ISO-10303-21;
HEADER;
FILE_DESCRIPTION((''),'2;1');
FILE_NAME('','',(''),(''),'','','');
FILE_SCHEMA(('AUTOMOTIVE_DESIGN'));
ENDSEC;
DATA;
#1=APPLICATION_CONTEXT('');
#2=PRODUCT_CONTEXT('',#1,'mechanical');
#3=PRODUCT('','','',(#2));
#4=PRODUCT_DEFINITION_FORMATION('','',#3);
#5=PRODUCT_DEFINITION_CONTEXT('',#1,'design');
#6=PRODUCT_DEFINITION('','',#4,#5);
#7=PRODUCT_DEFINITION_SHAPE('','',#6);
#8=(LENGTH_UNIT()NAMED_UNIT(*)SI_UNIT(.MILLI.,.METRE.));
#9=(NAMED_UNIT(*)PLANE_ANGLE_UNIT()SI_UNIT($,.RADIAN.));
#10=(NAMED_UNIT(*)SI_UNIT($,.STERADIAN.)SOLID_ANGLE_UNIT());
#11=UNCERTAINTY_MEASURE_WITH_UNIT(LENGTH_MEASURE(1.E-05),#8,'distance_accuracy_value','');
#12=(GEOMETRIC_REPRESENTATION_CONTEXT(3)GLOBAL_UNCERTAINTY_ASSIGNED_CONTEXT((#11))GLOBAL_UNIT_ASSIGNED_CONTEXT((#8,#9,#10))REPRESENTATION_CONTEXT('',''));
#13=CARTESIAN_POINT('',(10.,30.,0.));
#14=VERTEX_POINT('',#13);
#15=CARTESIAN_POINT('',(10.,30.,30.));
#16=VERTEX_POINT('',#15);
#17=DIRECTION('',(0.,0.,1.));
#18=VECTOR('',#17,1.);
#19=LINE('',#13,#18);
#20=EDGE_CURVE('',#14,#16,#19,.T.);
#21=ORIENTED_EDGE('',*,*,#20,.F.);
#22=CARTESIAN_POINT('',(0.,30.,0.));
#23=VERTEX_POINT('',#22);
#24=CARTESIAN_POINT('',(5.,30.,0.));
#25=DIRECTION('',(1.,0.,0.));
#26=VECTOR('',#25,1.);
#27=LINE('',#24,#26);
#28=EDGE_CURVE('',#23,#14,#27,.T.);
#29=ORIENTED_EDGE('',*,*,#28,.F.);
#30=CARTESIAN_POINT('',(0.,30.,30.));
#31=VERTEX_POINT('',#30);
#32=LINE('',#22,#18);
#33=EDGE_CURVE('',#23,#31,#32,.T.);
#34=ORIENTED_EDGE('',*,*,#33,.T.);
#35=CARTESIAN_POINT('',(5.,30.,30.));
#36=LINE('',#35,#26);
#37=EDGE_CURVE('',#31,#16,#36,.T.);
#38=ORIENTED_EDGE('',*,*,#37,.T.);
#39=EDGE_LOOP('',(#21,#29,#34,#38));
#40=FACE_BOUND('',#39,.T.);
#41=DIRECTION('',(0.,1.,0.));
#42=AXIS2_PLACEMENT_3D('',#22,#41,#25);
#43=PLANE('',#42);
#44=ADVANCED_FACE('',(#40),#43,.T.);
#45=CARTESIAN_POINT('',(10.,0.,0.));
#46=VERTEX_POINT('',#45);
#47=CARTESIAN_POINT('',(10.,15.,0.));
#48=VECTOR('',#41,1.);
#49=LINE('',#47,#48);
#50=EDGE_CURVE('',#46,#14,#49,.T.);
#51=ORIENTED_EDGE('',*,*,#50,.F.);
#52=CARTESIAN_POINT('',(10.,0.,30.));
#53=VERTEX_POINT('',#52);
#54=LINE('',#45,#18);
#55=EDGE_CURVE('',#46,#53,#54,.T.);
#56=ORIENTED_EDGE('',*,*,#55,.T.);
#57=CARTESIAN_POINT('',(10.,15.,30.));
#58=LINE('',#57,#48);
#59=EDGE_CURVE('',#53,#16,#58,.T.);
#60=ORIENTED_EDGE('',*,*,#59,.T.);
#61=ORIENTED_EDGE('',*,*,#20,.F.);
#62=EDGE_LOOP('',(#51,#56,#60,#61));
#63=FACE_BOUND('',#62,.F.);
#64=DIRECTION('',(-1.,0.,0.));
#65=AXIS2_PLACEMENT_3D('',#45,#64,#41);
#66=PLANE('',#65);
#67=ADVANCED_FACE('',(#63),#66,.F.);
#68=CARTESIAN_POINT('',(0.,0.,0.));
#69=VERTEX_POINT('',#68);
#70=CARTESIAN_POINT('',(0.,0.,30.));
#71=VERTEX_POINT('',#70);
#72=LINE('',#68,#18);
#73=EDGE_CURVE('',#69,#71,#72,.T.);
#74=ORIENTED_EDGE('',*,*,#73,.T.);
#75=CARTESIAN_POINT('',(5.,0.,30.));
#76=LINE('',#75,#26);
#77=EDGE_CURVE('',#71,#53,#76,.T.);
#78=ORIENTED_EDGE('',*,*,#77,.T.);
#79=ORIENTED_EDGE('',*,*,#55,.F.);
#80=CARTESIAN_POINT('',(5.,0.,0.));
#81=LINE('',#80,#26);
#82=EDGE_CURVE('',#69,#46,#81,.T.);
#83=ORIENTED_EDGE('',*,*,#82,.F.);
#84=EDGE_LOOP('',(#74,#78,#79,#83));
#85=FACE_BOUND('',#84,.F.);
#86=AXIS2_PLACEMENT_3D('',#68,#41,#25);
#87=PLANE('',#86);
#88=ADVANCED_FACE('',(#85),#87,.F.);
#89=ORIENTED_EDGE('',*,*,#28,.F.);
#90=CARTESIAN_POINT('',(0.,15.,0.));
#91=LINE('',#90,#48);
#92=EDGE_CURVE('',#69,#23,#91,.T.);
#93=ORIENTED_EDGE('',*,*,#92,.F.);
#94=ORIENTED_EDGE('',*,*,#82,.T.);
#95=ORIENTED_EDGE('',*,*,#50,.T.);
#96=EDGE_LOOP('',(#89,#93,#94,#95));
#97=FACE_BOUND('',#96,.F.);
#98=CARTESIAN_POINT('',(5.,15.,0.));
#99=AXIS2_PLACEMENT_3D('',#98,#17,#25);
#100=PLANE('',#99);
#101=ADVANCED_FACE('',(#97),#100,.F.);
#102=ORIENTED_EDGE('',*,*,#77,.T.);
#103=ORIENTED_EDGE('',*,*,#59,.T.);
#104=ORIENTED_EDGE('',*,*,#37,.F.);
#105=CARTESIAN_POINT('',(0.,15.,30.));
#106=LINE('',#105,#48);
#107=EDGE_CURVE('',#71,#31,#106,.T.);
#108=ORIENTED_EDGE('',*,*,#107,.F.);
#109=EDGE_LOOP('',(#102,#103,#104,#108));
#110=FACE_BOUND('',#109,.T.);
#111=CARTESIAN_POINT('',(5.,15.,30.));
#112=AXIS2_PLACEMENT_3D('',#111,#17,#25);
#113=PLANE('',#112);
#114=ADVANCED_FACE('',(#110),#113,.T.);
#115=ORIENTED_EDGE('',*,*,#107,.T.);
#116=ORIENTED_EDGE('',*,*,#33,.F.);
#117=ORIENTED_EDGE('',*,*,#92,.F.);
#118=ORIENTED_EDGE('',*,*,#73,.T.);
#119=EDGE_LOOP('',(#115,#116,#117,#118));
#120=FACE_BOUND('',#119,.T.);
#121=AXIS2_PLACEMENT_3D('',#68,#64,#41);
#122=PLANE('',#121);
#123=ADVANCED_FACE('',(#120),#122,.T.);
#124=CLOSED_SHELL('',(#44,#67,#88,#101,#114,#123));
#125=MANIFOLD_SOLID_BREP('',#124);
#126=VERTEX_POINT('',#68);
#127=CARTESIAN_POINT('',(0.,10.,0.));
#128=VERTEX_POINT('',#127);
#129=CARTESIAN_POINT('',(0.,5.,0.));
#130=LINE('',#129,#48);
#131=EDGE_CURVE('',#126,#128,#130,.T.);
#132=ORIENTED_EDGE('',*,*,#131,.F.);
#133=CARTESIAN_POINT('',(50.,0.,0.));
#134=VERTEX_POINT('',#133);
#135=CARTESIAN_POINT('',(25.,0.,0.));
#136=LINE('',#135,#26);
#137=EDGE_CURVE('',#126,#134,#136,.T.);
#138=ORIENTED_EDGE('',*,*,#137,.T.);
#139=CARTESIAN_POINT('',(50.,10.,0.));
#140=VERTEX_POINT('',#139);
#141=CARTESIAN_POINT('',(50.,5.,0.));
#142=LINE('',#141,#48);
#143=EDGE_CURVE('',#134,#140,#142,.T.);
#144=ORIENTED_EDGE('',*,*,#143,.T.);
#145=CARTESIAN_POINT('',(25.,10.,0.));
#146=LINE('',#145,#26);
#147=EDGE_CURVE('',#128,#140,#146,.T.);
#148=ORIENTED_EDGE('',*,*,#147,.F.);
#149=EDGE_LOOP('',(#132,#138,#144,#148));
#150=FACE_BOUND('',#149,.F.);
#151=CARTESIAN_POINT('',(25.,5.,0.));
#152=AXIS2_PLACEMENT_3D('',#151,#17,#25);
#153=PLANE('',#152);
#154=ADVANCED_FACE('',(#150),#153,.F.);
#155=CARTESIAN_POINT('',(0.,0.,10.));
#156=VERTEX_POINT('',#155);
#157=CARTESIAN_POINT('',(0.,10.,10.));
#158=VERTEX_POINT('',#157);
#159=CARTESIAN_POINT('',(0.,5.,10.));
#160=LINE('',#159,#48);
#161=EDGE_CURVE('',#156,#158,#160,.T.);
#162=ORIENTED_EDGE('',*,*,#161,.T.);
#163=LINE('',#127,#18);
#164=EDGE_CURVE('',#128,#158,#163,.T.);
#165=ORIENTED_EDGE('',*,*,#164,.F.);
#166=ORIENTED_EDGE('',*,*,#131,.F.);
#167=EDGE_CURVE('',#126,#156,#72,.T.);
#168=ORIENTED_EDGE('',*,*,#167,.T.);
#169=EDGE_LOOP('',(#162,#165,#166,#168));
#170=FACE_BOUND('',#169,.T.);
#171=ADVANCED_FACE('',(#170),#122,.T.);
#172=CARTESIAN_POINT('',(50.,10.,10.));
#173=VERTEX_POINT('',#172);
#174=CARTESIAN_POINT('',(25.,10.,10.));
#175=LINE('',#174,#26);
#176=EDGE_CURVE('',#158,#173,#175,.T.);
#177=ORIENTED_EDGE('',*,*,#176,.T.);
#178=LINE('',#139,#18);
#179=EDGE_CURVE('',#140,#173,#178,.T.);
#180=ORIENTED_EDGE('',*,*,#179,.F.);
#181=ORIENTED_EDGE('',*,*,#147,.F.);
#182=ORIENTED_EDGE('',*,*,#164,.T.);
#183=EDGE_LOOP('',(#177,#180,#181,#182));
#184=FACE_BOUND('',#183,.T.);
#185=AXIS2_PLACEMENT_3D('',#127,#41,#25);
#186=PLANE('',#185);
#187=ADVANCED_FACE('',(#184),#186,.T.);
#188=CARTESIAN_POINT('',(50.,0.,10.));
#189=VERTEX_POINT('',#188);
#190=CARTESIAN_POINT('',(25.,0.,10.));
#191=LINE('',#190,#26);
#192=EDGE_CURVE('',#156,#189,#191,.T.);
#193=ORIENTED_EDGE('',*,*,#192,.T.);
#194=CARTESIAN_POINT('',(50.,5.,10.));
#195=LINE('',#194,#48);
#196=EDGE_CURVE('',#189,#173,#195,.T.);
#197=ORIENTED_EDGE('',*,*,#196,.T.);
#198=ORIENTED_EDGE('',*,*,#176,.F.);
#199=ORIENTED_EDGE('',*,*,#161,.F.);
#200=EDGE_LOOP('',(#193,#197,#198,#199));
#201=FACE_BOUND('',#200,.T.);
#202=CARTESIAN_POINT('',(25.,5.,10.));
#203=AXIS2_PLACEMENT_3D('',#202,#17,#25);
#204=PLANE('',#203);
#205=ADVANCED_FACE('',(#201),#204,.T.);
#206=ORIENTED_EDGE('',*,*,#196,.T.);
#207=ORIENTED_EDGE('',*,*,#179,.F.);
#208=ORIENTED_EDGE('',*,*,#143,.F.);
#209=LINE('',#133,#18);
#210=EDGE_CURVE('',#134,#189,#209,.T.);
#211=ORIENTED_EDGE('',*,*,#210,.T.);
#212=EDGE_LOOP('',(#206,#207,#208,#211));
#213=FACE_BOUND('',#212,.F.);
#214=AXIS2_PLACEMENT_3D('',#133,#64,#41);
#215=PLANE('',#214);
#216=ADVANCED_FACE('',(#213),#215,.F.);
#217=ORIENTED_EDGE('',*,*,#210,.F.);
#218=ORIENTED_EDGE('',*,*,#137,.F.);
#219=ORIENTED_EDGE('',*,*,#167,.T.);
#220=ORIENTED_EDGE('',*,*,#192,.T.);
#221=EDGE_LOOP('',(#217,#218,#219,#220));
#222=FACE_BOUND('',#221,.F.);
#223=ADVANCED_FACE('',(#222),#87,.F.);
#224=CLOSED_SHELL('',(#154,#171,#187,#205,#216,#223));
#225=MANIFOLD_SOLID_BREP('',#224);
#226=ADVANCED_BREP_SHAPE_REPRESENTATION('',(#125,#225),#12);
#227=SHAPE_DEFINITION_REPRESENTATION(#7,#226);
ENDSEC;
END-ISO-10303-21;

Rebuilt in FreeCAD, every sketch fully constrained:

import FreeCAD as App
import Part
import Sketcher

doc = App.newDocument("Part")
body = doc.addObject("PartDesign::Body", "Body")

sketch1 = body.newObject("Sketcher::SketchObject", "Sketch")
sketch1.AttachmentSupport = (doc.getObject("XY_Plane"), [""])
sketch1.MapMode = "FlatFace"
sketch1.addGeometry([
    Part.LineSegment(App.Vector(0, 30, 0), App.Vector(0, 0, 0)),
    Part.LineSegment(App.Vector(0, 0, 0), App.Vector(10, 0, 0)),
    Part.LineSegment(App.Vector(10, 0, 0), App.Vector(10, 30, 0)),
    Part.LineSegment(App.Vector(10, 30, 0), App.Vector(0, 30, 0)),
], False)
sketch1.addConstraint([
    Sketcher.Constraint("Coincident", 0, 2, 1, 1),
    Sketcher.Constraint("Coincident", 1, 2, 2, 1),
    Sketcher.Constraint("Coincident", 2, 2, 3, 1),
    Sketcher.Constraint("Coincident", 3, 2, 0, 1),
    Sketcher.Constraint("Vertical", 0),
    Sketcher.Constraint("Horizontal", 1),
    Sketcher.Constraint("Vertical", 2),
    Sketcher.Constraint("Horizontal", 3),
    Sketcher.Constraint("Coincident", 0, 2, -1, 1),
    Sketcher.Constraint("DistanceX", 1, 1, 1, 2, 10.0),
    Sketcher.Constraint("DistanceY", 0, 2, 0, 1, 30.0),
])
pad1 = body.newObject("PartDesign::Pad", "Pad")
pad1.Profile = sketch1
pad1.Length = 30
body2 = doc.addObject("PartDesign::Body", "Body001")

sketch2 = body2.newObject("Sketcher::SketchObject", "Sketch001")
sketch2.AttachmentSupport = (doc.getObject("XY_Plane001"), [""])
sketch2.MapMode = "FlatFace"
sketch2.addGeometry([
    Part.LineSegment(App.Vector(0, 10, 0), App.Vector(0, 0, 0)),
    Part.LineSegment(App.Vector(0, 0, 0), App.Vector(50, 0, 0)),
    Part.LineSegment(App.Vector(50, 0, 0), App.Vector(50, 10, 0)),
    Part.LineSegment(App.Vector(50, 10, 0), App.Vector(0, 10, 0)),
], False)
sketch2.addConstraint([
    Sketcher.Constraint("Coincident", 0, 2, 1, 1),
    Sketcher.Constraint("Coincident", 1, 2, 2, 1),
    Sketcher.Constraint("Coincident", 2, 2, 3, 1),
    Sketcher.Constraint("Coincident", 3, 2, 0, 1),
    Sketcher.Constraint("Vertical", 0),
    Sketcher.Constraint("Horizontal", 1),
    Sketcher.Constraint("Vertical", 2),
    Sketcher.Constraint("Horizontal", 3),
    Sketcher.Constraint("Coincident", 0, 2, -1, 1),
    Sketcher.Constraint("DistanceX", 1, 1, 1, 2, 50.0),
    Sketcher.Constraint("DistanceY", 0, 2, 0, 1, 10.0),
])
pad2 = body2.newObject("PartDesign::Pad", "Pad001")
pad2.Profile = sketch2
pad2.Length = 10

doc.recompute()
